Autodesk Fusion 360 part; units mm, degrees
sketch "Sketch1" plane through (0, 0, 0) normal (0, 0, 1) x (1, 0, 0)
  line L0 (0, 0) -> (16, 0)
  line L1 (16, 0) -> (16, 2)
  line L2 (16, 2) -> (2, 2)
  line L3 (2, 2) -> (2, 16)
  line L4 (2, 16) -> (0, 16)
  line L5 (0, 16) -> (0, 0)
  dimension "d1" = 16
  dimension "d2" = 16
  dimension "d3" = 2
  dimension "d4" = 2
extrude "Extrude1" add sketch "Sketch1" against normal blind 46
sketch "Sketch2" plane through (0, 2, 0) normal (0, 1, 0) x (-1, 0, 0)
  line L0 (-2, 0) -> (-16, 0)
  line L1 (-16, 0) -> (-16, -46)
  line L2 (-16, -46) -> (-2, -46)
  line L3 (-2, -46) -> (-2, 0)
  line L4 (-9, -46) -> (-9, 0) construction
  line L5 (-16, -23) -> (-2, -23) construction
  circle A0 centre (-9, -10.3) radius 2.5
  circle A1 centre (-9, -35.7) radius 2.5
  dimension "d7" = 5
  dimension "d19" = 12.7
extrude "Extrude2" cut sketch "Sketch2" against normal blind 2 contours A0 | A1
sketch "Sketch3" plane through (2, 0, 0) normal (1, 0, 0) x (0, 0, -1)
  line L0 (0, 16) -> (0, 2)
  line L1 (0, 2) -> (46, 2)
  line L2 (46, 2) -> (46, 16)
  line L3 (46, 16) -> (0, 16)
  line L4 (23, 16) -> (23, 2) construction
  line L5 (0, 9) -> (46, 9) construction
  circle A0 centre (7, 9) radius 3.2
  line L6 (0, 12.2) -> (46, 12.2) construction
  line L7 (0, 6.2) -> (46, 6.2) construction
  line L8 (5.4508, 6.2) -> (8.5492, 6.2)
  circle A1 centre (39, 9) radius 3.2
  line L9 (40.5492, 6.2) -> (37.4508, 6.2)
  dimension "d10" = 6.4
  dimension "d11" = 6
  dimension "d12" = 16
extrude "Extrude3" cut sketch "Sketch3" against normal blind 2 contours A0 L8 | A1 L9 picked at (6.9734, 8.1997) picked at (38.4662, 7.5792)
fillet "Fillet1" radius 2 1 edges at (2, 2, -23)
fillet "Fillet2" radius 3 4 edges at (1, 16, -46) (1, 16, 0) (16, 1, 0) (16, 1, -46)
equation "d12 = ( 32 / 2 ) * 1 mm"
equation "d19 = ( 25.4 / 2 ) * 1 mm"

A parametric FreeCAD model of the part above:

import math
import FreeCAD as App
import Part
import Sketcher
from FreeCAD import Vector
Q = App.Units.Quantity


def edges_at(feature, points):
    """Names of the edges that pass closest to the given points."""
    edges = feature.Shape.Edges
    near = lambda p: min(range(len(edges)), key=lambda i: edges[i].distToShape(Part.Vertex(*p))[0])
    return sorted({f"Edge{near(p) + 1}" for p in points})


def add_polygon(sketch, points):
    """Adds a closed chain of lines whose ends are joined by coincident constraints."""
    first, n = sketch.GeometryCount, len(points)
    for a, b in zip(points, points[1:] + points[:1]):
        sketch.addGeometry(Part.LineSegment(App.Vector(*a, 0), App.Vector(*b, 0)), False)
    for i in range(n):
        sketch.addConstraint(Sketcher.Constraint("Coincident", first + i, 2, first + (i + 1) % n, 1))

doc = App.newDocument("Part")
body = doc.addObject("PartDesign::Body", "Body")

# Sketch on XY plane
sketch1 = body.newObject("Sketcher::SketchObject", "Sketch")
sketch1.AttachmentSupport = (doc.getObject("XY_Plane"), [""])
sketch1.MapMode = "FlatFace"
add_polygon(sketch1, [(0, 16), (0, 0), (16, 0), (16, 2), (2, 2), (2, 16)])  # lines 0-5
sketch1.addConstraint([
    Sketcher.Constraint("Vertical", 0),
    Sketcher.Constraint("Horizontal", 1),
    Sketcher.Constraint("Vertical", 2),
    Sketcher.Constraint("Horizontal", 3),
    Sketcher.Constraint("Vertical", 4),
    Sketcher.Constraint("Horizontal", 5),
    Sketcher.Constraint("Coincident", 0, 2, -1, 1),
    Sketcher.Constraint("Equal", 1, 0),
    Sketcher.Constraint("Equal", 5, 2),
    Sketcher.Constraint("DistanceX", 1, 1, 1, 2, Q("16 mm")),
    Sketcher.Constraint("DistanceX", 5, 2, 5, 1, Q("2 mm")),
])
pad1 = body.newObject("PartDesign::Pad", "Pad")
pad1.Profile = sketch1
pad1.Length = 46
pad1.Reversed = True

# Sketch on XZ plane
sketch2 = body.newObject("Sketcher::SketchObject", "Sketch001")
sketch2.AttachmentSupport = (doc.getObject("XZ_Plane"), [""])
sketch2.MapMode = "FlatFace"
sketch2.AttachmentOffset = App.Placement(Vector(0, 0, -2), App.Rotation())
sketch2.addGeometry([
    Part.Circle(Vector(9, -10.3, 0), Vector(0, 0, 1), 2.5),
    Part.Circle(Vector(9, -35.7, 0), Vector(0, 0, 1), 2.5),
], False)
sketch2.addConstraint([
    Sketcher.Constraint("Equal", 0, 1),
    Sketcher.Constraint("Vertical", 0, 3, 1, 3),
    Sketcher.Constraint("Diameter", 0, Q("5 mm")),
    Sketcher.Constraint("DistanceX", -1, 1, 0, 3, Q("9 mm")),
    Sketcher.Constraint("DistanceY", 0, 3, -1, 1, Q("10.3 mm")),
    Sketcher.Constraint("DistanceY", 1, 3, -1, 1, Q("35.7 mm")),
])
pocket1 = body.newObject("PartDesign::Pocket", "Pocket")
pocket1.Profile = sketch2
pocket1.Length = 2
pocket1.Reversed = True

# Sketch on YZ plane
sketch3 = body.newObject("Sketcher::SketchObject", "Sketch002")
sketch3.AttachmentSupport = (doc.getObject("YZ_Plane"), [""])
sketch3.MapMode = "FlatFace"
sketch3.AttachmentOffset = App.Placement(Vector(0, 0, 2), App.Rotation())
sketch3.addGeometry([
    Part.ArcOfCircle(Part.Circle(Vector(9, -7, 0), Vector(0, 0, 1), 3.2), math.radians(-151), math.radians(151)),
    Part.LineSegment(Vector(6.2, -8.5, 0), Vector(6.2, -5.5, 0)),
    Part.ArcOfCircle(Part.Circle(Vector(9, -39, 0), Vector(0, 0, 1), 3.2), math.radians(-151), math.radians(151)),
    Part.LineSegment(Vector(6.2, -40.5, 0), Vector(6.2, -37.5, 0)),
], False)
sketch3.addConstraint([
    Sketcher.Constraint("Coincident", 0, 1, 1, 1),
    Sketcher.Constraint("Coincident", 1, 2, 0, 2),
    Sketcher.Constraint("Coincident", 2, 1, 3, 1),
    Sketcher.Constraint("Coincident", 3, 2, 2, 2),
    Sketcher.Constraint("Vertical", 1),
    Sketcher.Constraint("Vertical", 3),
    Sketcher.Constraint("Equal", 0, 2),
    Sketcher.Constraint("Vertical", 0, 3, 2, 3),
    Sketcher.Constraint("Vertical", 1, 2, 2, 1),
    Sketcher.Constraint("Radius", 0, Q("3.2 mm")),
    Sketcher.Constraint("DistanceX", -1, 1, 0, 3, Q("9 mm")),
    Sketcher.Constraint("DistanceY", 0, 3, -1, 1, Q("7 mm")),
    Sketcher.Constraint("DistanceY", 2, 3, -1, 1, Q("39 mm")),
    Sketcher.Constraint("DistanceX", -1, 1, 0, 1, Q("6.2 mm")),
])
pocket2 = body.newObject("PartDesign::Pocket", "Pocket001")
pocket2.Profile = sketch3
pocket2.Length = 2
doc.recompute()

fillet = body.newObject("PartDesign::Fillet", "Fillet")
fillet.Base = (pocket2, edges_at(pocket2, [(2, 2, -23)]))
fillet.Radius = 2
doc.recompute()

fillet2 = body.newObject("PartDesign::Fillet", "Fillet001")
fillet2.Base = (fillet, edges_at(fillet, [
    (1, 16, -46),
    (1, 16, 0),
    (16, 1, 0),
    (16, 1, -46),
]))
fillet2.Radius = 3

doc.recompute()
